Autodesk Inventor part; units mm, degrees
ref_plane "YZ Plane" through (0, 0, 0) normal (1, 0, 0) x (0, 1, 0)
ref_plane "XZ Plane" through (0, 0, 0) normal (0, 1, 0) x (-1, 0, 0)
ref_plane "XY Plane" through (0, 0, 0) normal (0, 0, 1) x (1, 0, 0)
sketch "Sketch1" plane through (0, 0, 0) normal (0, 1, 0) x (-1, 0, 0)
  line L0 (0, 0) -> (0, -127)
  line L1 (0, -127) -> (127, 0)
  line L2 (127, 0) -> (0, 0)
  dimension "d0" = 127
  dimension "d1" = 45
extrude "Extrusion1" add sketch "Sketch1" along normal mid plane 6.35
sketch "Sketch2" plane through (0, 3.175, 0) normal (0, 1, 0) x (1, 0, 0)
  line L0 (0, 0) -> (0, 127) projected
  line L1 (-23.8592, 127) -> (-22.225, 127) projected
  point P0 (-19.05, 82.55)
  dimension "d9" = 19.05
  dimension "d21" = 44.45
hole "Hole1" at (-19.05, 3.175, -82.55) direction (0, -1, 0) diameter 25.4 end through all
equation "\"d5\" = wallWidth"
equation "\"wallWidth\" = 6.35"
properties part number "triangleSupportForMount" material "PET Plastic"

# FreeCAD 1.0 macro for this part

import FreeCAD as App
import Part
import Sketcher
Q = App.Units.Quantity

doc = App.newDocument("Part")
body = doc.addObject("PartDesign::Body", "Body")

# Sketch on XZ plane
sketch1 = body.newObject("Sketcher::SketchObject", "Sketch")
sketch1.AttachmentSupport = (doc.getObject("XZ_Plane"), [""])
sketch1.MapMode = "FlatFace"
sketch1.addGeometry([
    Part.LineSegment(App.Vector(-127, 0, 0), App.Vector(0, 0, 0)),
    Part.LineSegment(App.Vector(0, 0, 0), App.Vector(0, -127, 0)),
    Part.LineSegment(App.Vector(0, -127, 0), App.Vector(-127, 0, 0)),
], False)
sketch1.addConstraint([
    Sketcher.Constraint("Coincident", 0, 2, 1, 1),
    Sketcher.Constraint("Coincident", 1, 2, 2, 1),
    Sketcher.Constraint("Coincident", 2, 2, 0, 1),
    Sketcher.Constraint("Horizontal", 0),
    Sketcher.Constraint("Vertical", 1),
    Sketcher.Constraint("Coincident", 0, 2, -1, 1),
    Sketcher.Constraint("Equal", 0, 1),
    Sketcher.Constraint("DistanceX", 0, 1, 0, 2, Q("5 in")),
])
pad1 = body.newObject("PartDesign::Pad", "Pad")
pad1.Profile = sketch1
pad1.Length = Q("0.25 in")
pad1.Midplane = True

# Sketch on XZ plane
sketch2 = body.newObject("Sketcher::SketchObject", "Sketch001")
sketch2.AttachmentSupport = (doc.getObject("XZ_Plane"), [""])
sketch2.MapMode = "FlatFace"
sketch2.AttachmentOffset = App.Placement(App.Vector(0, 0, -0.125 * 25.4), App.Rotation())
sketch2.addGeometry(Part.Circle(App.Vector(-19.05, -82.55, 0), App.Vector(0, 0, 1), 12.7), False)
sketch2.addConstraint([
    Sketcher.Constraint("Diameter", 0, Q("1 in")),
    Sketcher.Constraint("DistanceX", 0, 3, -1, 1, Q("0.75 in")),
    Sketcher.Constraint("DistanceY", 0, 3, -1, 1, Q("3.25 in")),
])
doc.recompute()
hole = body.newObject("PartDesign::Hole", "Hole")
hole.Profile = sketch2
hole.ThreadType = "None"
hole.Diameter = Q("1 in")
hole.DepthType = "ThroughAll"
hole.Reversed = True

doc.recompute()
